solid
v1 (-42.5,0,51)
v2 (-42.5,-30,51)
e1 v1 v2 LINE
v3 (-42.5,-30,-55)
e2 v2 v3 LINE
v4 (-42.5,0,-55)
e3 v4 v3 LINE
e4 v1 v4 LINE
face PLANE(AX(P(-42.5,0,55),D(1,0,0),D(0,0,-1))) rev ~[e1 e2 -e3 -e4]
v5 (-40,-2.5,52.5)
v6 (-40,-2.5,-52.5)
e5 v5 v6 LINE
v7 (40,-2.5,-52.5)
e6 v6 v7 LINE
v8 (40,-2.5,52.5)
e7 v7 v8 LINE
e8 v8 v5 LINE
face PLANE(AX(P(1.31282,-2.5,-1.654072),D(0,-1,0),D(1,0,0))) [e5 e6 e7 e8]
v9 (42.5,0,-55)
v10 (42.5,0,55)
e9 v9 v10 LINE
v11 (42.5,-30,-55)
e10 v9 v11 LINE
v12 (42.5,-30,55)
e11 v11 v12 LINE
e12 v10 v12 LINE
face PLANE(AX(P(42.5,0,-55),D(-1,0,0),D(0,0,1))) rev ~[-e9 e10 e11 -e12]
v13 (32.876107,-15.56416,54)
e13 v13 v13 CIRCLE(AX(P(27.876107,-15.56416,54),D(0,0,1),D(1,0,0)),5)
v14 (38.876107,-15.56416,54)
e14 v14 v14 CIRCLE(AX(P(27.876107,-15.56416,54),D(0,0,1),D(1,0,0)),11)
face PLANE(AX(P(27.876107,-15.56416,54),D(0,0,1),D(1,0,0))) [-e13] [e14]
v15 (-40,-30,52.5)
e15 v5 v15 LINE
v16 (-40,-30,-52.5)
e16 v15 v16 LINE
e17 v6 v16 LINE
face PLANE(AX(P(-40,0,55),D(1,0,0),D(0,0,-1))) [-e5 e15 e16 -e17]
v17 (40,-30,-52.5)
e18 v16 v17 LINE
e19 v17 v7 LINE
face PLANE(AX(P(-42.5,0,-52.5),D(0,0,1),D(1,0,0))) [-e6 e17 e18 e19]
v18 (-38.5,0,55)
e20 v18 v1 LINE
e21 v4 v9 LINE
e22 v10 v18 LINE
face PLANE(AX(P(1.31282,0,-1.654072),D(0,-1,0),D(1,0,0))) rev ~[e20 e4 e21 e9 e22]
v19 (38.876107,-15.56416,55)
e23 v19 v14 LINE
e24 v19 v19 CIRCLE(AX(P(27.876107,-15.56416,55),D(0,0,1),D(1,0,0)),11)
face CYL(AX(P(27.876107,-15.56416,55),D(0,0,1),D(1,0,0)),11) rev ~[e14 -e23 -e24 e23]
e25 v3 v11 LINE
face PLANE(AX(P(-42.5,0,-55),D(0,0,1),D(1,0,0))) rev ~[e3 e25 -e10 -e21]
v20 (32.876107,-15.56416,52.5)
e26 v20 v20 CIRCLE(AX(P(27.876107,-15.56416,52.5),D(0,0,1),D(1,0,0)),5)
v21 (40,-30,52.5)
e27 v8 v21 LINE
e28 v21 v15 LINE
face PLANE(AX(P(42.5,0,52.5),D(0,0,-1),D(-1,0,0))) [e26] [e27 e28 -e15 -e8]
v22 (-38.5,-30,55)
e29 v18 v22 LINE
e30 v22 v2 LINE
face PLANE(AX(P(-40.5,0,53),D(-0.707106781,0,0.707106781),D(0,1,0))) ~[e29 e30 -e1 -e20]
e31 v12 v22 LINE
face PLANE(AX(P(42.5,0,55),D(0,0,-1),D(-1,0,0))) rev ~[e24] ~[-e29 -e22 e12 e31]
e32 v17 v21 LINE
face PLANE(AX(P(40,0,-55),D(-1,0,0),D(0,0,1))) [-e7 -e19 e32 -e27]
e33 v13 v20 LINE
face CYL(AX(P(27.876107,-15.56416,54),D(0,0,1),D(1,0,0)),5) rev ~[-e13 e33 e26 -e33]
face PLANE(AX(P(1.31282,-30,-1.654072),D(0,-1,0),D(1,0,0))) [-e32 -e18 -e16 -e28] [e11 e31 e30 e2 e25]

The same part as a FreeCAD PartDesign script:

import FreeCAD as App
import Part
import Sketcher

V = App.Vector


def edges_at(feature, points):
    """Names of the edges that pass closest to the given points."""
    edges = feature.Shape.Edges
    near = lambda p: min(range(len(edges)), key=lambda i: edges[i].distToShape(Part.Vertex(*p))[0])
    return sorted({f"Edge{near(p) + 1}" for p in points})


def faces_at(feature, points):
    """Names of the faces that lie closest to the given points."""
    faces = feature.Shape.Faces
    near = lambda p: min(range(len(faces)), key=lambda i: faces[i].distToShape(Part.Vertex(*p))[0])
    return sorted({f"Face{near(p) + 1}" for p in points})

doc = App.newDocument("Part")
params = doc.addObject("Spreadsheet::Sheet", "Params")
for row, (alias, value) in enumerate([
    ("sketch1_width", "85 mm"),
    ("sketch1_height", "110 mm"),
    ("pad1_length", "30 mm"),
    ("sketch2_diameter", "22 mm"),
    ("pad2_length", "0.5 mm"),
    ("thickness_wall", "2.5 mm"),
    ("sketch3_diameter", "22 mm"),
    ("pocket1_length", "1 mm"),
    ("sketch4_diameter", "10 mm"),
    ("pocket2_length", "1.5 mm"),
    ("chamfer_size", "4 mm"),
    ("chamfer_size2", "4 mm"),
], start=1):
    params.set(f"A{row}", alias)
    params.set(f"B{row}", "=" + value)
    params.setAlias(f"B{row}", alias)

body = doc.addObject("PartDesign::Body", "Body")

sketch1 = body.newObject("Sketcher::SketchObject", "Sketch")
sketch1.AttachmentSupport = (doc.getObject("XZ_Plane"), [""])
sketch1.MapMode = "FlatFace"
sketch1.addGeometry(Part.LineSegment(V(42, -55, 0), V(42, 55, 0)), False)
sketch1.addGeometry(Part.LineSegment(V(42, 55, 0), V(-42, 55, 0)), False)
sketch1.addGeometry(Part.LineSegment(V(-42, 55, 0), V(-42, -55, 0)), False)
sketch1.addGeometry(Part.LineSegment(V(-42, -55, 0), V(42, -55, 0)), False)
sketch1.addConstraint(Sketcher.Constraint("Coincident", 0, 2, 1, 1))
sketch1.addConstraint(Sketcher.Constraint("Coincident", 1, 2, 2, 1))
sketch1.addConstraint(Sketcher.Constraint("Coincident", 2, 2, 3, 1))
sketch1.addConstraint(Sketcher.Constraint("Coincident", 3, 2, 0, 1))
sketch1.addConstraint(Sketcher.Constraint("Vertical", 0))
sketch1.addConstraint(Sketcher.Constraint("Horizontal", 1))
sketch1.addConstraint(Sketcher.Constraint("Vertical", 2))
sketch1.addConstraint(Sketcher.Constraint("Horizontal", 3))
sketch1.addConstraint(Sketcher.Constraint("Symmetric", 0, 2, 2, 2, -1, 1))
sketch1.addConstraint(Sketcher.Constraint("DistanceX", 1, 2, 1, 1, 85.0))
sketch1.addConstraint(Sketcher.Constraint("DistanceY", 0, 1, 0, 2, 110.0))
sketch1.setExpression("Constraints[9]", "Params.sketch1_width")
sketch1.setExpression("Constraints[10]", "Params.sketch1_height")
pad1 = body.newObject("PartDesign::Pad", "Pad")
pad1.Profile = sketch1
pad1.setExpression("Length", "Params.pad1_length")

sketch2 = body.newObject("Sketcher::SketchObject", "Sketch001")
sketch2.AttachmentSupport = (doc.getObject("XY_Plane"), [""])
sketch2.MapMode = "FlatFace"
sketch2.AttachmentOffset = App.Placement(V(0, 0, 55), App.Rotation())
sketch2.addGeometry(Part.Circle(V(25, -14, 0), V(0, 0, 1), 11), False)
sketch2.addConstraint(Sketcher.Constraint("Diameter", 0, 22.0))
sketch2.addConstraint(Sketcher.Constraint("DistanceX", -1, 1, 0, 3, 25.320798))
sketch2.addConstraint(Sketcher.Constraint("DistanceY", 0, 3, -1, 1, 14.402656))
sketch2.setExpression("Constraints[0]", "Params.sketch2_diameter")
pad2 = body.newObject("PartDesign::Pad", "Pad001")
pad2.Profile = sketch2
pad2.setExpression("Length", "Params.pad2_length")
pad2.Reversed = True
doc.recompute()

thickness = body.newObject("PartDesign::Thickness", "Thickness")
thickness.Base = (pad2, faces_at(pad2, [(0, -30, 0)]))
thickness.setExpression("Value", "Params.thickness_wall")
thickness.Reversed = True
thickness.Join = "Arc"

sketch3 = body.newObject("Sketcher::SketchObject", "Sketch002")
sketch3.AttachmentSupport = (doc.getObject("XY_Plane"), [""])
sketch3.MapMode = "FlatFace"
sketch3.AttachmentOffset = App.Placement(V(0, 0, 55), App.Rotation())
sketch3.addGeometry(Part.Circle(V(28, -16, 0), V(0, 0, 1), 11), False)
sketch3.addConstraint(Sketcher.Constraint("Diameter", 0, 22.0))
sketch3.addConstraint(Sketcher.Constraint("DistanceY", 0, 3, -1, 1, 15.56416))
sketch3.addConstraint(Sketcher.Constraint("DistanceX", -1, 1, 0, 3, 27.876107))
sketch3.setExpression("Constraints[0]", "Params.sketch3_diameter")
pocket1 = body.newObject("PartDesign::Pocket", "Pocket")
pocket1.Profile = sketch3
pocket1.setExpression("Length", "Params.pocket1_length")

sketch4 = body.newObject("Sketcher::SketchObject", "Sketch003")
sketch4.AttachmentSupport = (doc.getObject("XY_Plane"), [""])
sketch4.MapMode = "FlatFace"
sketch4.AttachmentOffset = App.Placement(V(0, 0, 54), App.Rotation())
sketch4.addGeometry(Part.Circle(V(28, -16, 0), V(0, 0, 1), 5), False)
sketch4.addConstraint(Sketcher.Constraint("Diameter", 0, 10.0))
sketch4.addConstraint(Sketcher.Constraint("DistanceY", 0, 3, -1, 1, 15.56416))
sketch4.addConstraint(Sketcher.Constraint("DistanceX", -1, 1, 0, 3, 27.876107))
sketch4.setExpression("Constraints[0]", "Params.sketch4_diameter")
pocket2 = body.newObject("PartDesign::Pocket", "Pocket001")
pocket2.Profile = sketch4
pocket2.setExpression("Length", "Params.pocket2_length")
doc.recompute()

chamfer = body.newObject("PartDesign::Chamfer", "Chamfer")
chamfer.Base = (pocket2, edges_at(pocket2, [(-42.5, -15, 55)]))
chamfer.ChamferType = "Two distances"
chamfer.setExpression("Size", "Params.chamfer_size")
chamfer.setExpression("Size2", "Params.chamfer_size2")

doc.recompute()
